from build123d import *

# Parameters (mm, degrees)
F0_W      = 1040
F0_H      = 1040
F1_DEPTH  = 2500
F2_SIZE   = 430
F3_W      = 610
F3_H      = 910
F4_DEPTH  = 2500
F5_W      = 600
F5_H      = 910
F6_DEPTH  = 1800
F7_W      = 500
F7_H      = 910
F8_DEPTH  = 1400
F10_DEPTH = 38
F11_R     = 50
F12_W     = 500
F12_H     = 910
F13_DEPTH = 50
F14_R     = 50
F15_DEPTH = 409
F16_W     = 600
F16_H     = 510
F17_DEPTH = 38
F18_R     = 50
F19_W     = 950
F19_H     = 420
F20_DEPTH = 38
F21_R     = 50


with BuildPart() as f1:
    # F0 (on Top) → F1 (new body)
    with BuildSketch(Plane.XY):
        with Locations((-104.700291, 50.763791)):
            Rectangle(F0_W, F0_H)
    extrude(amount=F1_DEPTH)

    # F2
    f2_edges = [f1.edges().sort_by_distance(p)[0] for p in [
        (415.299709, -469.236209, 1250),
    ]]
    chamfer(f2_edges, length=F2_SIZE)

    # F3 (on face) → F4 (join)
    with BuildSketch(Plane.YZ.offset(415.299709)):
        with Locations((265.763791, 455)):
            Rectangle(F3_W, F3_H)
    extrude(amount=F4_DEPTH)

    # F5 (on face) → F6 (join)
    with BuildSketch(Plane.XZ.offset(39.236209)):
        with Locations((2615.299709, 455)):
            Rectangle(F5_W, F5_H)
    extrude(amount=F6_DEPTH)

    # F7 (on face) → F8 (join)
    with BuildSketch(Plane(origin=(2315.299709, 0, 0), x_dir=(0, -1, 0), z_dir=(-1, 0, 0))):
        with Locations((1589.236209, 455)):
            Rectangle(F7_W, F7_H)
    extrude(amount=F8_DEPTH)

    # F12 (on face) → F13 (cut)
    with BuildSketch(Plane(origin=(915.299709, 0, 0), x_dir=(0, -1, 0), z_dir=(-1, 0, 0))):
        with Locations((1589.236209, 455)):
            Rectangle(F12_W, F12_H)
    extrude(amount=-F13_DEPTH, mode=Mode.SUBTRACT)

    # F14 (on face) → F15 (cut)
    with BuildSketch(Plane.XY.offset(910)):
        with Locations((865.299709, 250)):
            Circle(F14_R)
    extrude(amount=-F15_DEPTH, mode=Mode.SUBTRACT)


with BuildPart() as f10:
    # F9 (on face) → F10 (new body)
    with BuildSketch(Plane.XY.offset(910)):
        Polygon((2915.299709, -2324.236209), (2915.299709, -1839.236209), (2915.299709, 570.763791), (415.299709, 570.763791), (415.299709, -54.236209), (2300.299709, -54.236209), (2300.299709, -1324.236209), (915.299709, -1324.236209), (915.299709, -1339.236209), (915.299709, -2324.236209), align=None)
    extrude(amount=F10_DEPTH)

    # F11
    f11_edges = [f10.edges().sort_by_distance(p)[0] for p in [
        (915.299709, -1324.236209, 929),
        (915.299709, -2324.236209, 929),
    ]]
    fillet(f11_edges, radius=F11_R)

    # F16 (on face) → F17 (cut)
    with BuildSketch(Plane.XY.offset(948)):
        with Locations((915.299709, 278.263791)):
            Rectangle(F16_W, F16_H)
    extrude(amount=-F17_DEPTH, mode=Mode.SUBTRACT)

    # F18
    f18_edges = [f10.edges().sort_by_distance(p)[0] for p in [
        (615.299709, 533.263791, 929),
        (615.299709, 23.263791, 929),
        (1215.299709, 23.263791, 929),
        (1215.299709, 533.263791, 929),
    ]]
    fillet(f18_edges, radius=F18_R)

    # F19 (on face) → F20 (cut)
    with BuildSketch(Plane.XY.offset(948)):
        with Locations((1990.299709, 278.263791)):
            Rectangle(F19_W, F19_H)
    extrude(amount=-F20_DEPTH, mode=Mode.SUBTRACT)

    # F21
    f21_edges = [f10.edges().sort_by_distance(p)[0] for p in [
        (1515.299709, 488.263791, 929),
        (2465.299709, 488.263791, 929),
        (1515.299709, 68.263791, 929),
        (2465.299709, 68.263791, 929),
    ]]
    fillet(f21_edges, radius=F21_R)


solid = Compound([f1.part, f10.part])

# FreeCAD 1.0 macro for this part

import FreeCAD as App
import Part
import Sketcher


def edges_at(feature, points):
    """Names of the edges that pass closest to the given points."""
    edges = feature.Shape.Edges
    near = lambda p: min(range(len(edges)), key=lambda i: edges[i].distToShape(Part.Vertex(*p))[0])
    return sorted({f"Edge{near(p) + 1}" for p in points})

doc = App.newDocument("Part")
body = doc.addObject("PartDesign::Body", "Body")

sketch1 = body.newObject("Sketcher::SketchObject", "Sketch")
sketch1.AttachmentSupport = (doc.getObject("XY_Plane"), [""])
sketch1.MapMode = "FlatFace"
sketch1.addGeometry(Part.LineSegment(App.Vector(-624.700291, 570.763791, 0), App.Vector(-624.700291, -469.236209, 0)), False)
sketch1.addGeometry(Part.LineSegment(App.Vector(-624.700291, -469.236209, 0), App.Vector(415.299709, -469.236209, 0)), False)
sketch1.addGeometry(Part.LineSegment(App.Vector(415.299709, -469.236209, 0), App.Vector(415.299709, 570.763791, 0)), False)
sketch1.addGeometry(Part.LineSegment(App.Vector(415.299709, 570.763791, 0), App.Vector(-624.700291, 570.763791, 0)), False)
sketch1.addConstraint(Sketcher.Constraint("Coincident", 0, 2, 1, 1))
sketch1.addConstraint(Sketcher.Constraint("Coincident", 1, 2, 2, 1))
sketch1.addConstraint(Sketcher.Constraint("Coincident", 2, 2, 3, 1))
sketch1.addConstraint(Sketcher.Constraint("Coincident", 3, 2, 0, 1))
sketch1.addConstraint(Sketcher.Constraint("Vertical", 0))
sketch1.addConstraint(Sketcher.Constraint("Horizontal", 1))
sketch1.addConstraint(Sketcher.Constraint("Vertical", 2))
sketch1.addConstraint(Sketcher.Constraint("Horizontal", 3))
sketch1.addConstraint(Sketcher.Constraint("Equal", 3, 0))
sketch1.addConstraint(Sketcher.Constraint("DistanceX", 1, 1, 1, 2, 1040.0))
sketch1.addConstraint(Sketcher.Constraint("DistanceX", 0, 2, -1, 1, 624.700291))
sketch1.addConstraint(Sketcher.Constraint("DistanceY", 0, 2, -1, 1, 469.236209))
pad1 = body.newObject("PartDesign::Pad", "Pad")
pad1.Profile = sketch1
pad1.Length = 2500
doc.recompute()

chamfer = body.newObject("PartDesign::Chamfer", "Chamfer")
chamfer.Base = (pad1, edges_at(pad1, [(415.3, -469.236, 1250)]))
chamfer.Size = 430

sketch2 = body.newObject("Sketcher::SketchObject", "Sketch001")
sketch2.AttachmentSupport = (doc.getObject("YZ_Plane"), [""])
sketch2.MapMode = "FlatFace"
sketch2.AttachmentOffset = App.Placement(App.Vector(0, 0, 415.299709), App.Rotation())
sketch2.addGeometry(Part.LineSegment(App.Vector(-39.236209, 910, 0), App.Vector(-39.236209, 0, 0)), False)
sketch2.addGeometry(Part.LineSegment(App.Vector(-39.236209, 0, 0), App.Vector(570.763791, 0, 0)), False)
sketch2.addGeometry(Part.LineSegment(App.Vector(570.763791, 0, 0), App.Vector(570.763791, 910, 0)), False)
sketch2.addGeometry(Part.LineSegment(App.Vector(570.763791, 910, 0), App.Vector(-39.236209, 910, 0)), False)
sketch2.addConstraint(Sketcher.Constraint("Coincident", 0, 2, 1, 1))
sketch2.addConstraint(Sketcher.Constraint("Coincident", 1, 2, 2, 1))
sketch2.addConstraint(Sketcher.Constraint("Coincident", 2, 2, 3, 1))
sketch2.addConstraint(Sketcher.Constraint("Coincident", 3, 2, 0, 1))
sketch2.addConstraint(Sketcher.Constraint("Vertical", 0))
sketch2.addConstraint(Sketcher.Constraint("Horizontal", 1))
sketch2.addConstraint(Sketcher.Constraint("Vertical", 2))
sketch2.addConstraint(Sketcher.Constraint("Horizontal", 3))
sketch2.addConstraint(Sketcher.Constraint("PointOnObject", 0, 2, -1))
sketch2.addConstraint(Sketcher.Constraint("DistanceX", 1, 1, 1, 2, 610.0))
sketch2.addConstraint(Sketcher.Constraint("DistanceY", 0, 2, 0, 1, 910.0))
sketch2.addConstraint(Sketcher.Constraint("DistanceX", 0, 2, -1, 1, 39.236209))
pad2 = body.newObject("PartDesign::Pad", "Pad001")
pad2.Profile = sketch2
pad2.Length = 2500

sketch3 = body.newObject("Sketcher::SketchObject", "Sketch002")
sketch3.AttachmentSupport = (doc.getObject("XZ_Plane"), [""])
sketch3.MapMode = "FlatFace"
sketch3.AttachmentOffset = App.Placement(App.Vector(0, 0, 39.236209), App.Rotation())
sketch3.addGeometry(Part.LineSegment(App.Vector(2315.299709, 910, 0), App.Vector(2315.299709, 0, 0)), False)
sketch3.addGeometry(Part.LineSegment(App.Vector(2315.299709, 0, 0), App.Vector(2915.299709, 0, 0)), False)
sketch3.addGeometry(Part.LineSegment(App.Vector(2915.299709, 0, 0), App.Vector(2915.299709, 910, 0)), False)
sketch3.addGeometry(Part.LineSegment(App.Vector(2915.299709, 910, 0), App.Vector(2315.299709, 910, 0)), False)
sketch3.addConstraint(Sketcher.Constraint("Coincident", 0, 2, 1, 1))
sketch3.addConstraint(Sketcher.Constraint("Coincident", 1, 2, 2, 1))
sketch3.addConstraint(Sketcher.Constraint("Coincident", 2, 2, 3, 1))
sketch3.addConstraint(Sketcher.Constraint("Coincident", 3, 2, 0, 1))
sketch3.addConstraint(Sketcher.Constraint("Vertical", 0))
sketch3.addConstraint(Sketcher.Constraint("Horizontal", 1))
sketch3.addConstraint(Sketcher.Constraint("Vertical", 2))
sketch3.addConstraint(Sketcher.Constraint("Horizontal", 3))
sketch3.addConstraint(Sketcher.Constraint("PointOnObject", 0, 2, -1))
sketch3.addConstraint(Sketcher.Constraint("DistanceX", 1, 1, 1, 2, 600.0))
sketch3.addConstraint(Sketcher.Constraint("DistanceY", 0, 2, 0, 1, 910.0))
sketch3.addConstraint(Sketcher.Constraint("DistanceX", -1, 1, 0, 2, 2315.299709))
pad3 = body.newObject("PartDesign::Pad", "Pad002")
pad3.Profile = sketch3
pad3.Length = 1800

sketch4 = body.newObject("Sketcher::SketchObject", "Sketch003")
sketch4.AttachmentSupport = (doc.getObject("YZ_Plane"), [""])
sketch4.MapMode = "FlatFace"
sketch4.AttachmentOffset = App.Placement(App.Vector(0, 0, 2315.299709), App.Rotation())
sketch4.addGeometry(Part.LineSegment(App.Vector(-1339.236209, 910, 0), App.Vector(-1339.236209, 0, 0)), False)
sketch4.addGeometry(Part.LineSegment(App.Vector(-1339.236209, 0, 0), App.Vector(-1839.236209, 0, 0)), False)
sketch4.addGeometry(Part.LineSegment(App.Vector(-1839.236209, 0, 0), App.Vector(-1839.236209, 910, 0)), False)
sketch4.addGeometry(Part.LineSegment(App.Vector(-1839.236209, 910, 0), App.Vector(-1339.236209, 910, 0)), False)
sketch4.addConstraint(Sketcher.Constraint("Coincident", 0, 2, 1, 1))
sketch4.addConstraint(Sketcher.Constraint("Coincident", 1, 2, 2, 1))
sketch4.addConstraint(Sketcher.Constraint("Coincident", 2, 2, 3, 1))
sketch4.addConstraint(Sketcher.Constraint("Coincident", 3, 2, 0, 1))
sketch4.addConstraint(Sketcher.Constraint("Vertical", 0))
sketch4.addConstraint(Sketcher.Constraint("Horizontal", 1))
sketch4.addConstraint(Sketcher.Constraint("Vertical", 2))
sketch4.addConstraint(Sketcher.Constraint("Horizontal", 3))
sketch4.addConstraint(Sketcher.Constraint("PointOnObject", 0, 2, -1))
sketch4.addConstraint(Sketcher.Constraint("DistanceX", 1, 2, 1, 1, 500.0))
sketch4.addConstraint(Sketcher.Constraint("DistanceY", 0, 2, 0, 1, 910.0))
sketch4.addConstraint(Sketcher.Constraint("DistanceX", 0, 2, -1, 1, 1339.236209))
pad4 = body.newObject("PartDesign::Pad", "Pad003")
pad4.Profile = sketch4
pad4.Length = 1400
pad4.Reversed = True

sketch5 = body.newObject("Sketcher::SketchObject", "Sketch004")
sketch5.AttachmentSupport = (doc.getObject("YZ_Plane"), [""])
sketch5.MapMode = "FlatFace"
sketch5.AttachmentOffset = App.Placement(App.Vector(0, 0, 915.299709), App.Rotation())
sketch5.addGeometry(Part.LineSegment(App.Vector(-1339.236209, 910, 0), App.Vector(-1339.236209, 0, 0)), False)
sketch5.addGeometry(Part.LineSegment(App.Vector(-1339.236209, 0, 0), App.Vector(-1839.236209, 0, 0)), False)
sketch5.addGeometry(Part.LineSegment(App.Vector(-1839.236209, 0, 0), App.Vector(-1839.236209, 910, 0)), False)
sketch5.addGeometry(Part.LineSegment(App.Vector(-1839.236209, 910, 0), App.Vector(-1339.236209, 910, 0)), False)
sketch5.addConstraint(Sketcher.Constraint("Coincident", 0, 2, 1, 1))
sketch5.addConstraint(Sketcher.Constraint("Coincident", 1, 2, 2, 1))
sketch5.addConstraint(Sketcher.Constraint("Coincident", 2, 2, 3, 1))
sketch5.addConstraint(Sketcher.Constraint("Coincident", 3, 2, 0, 1))
sketch5.addConstraint(Sketcher.Constraint("Vertical", 0))
sketch5.addConstraint(Sketcher.Constraint("Horizontal", 1))
sketch5.addConstraint(Sketcher.Constraint("Vertical", 2))
sketch5.addConstraint(Sketcher.Constraint("Horizontal", 3))
sketch5.addConstraint(Sketcher.Constraint("PointOnObject", 0, 2, -1))
sketch5.addConstraint(Sketcher.Constraint("DistanceX", 1, 2, 1, 1, 500.0))
sketch5.addConstraint(Sketcher.Constraint("DistanceY", 0, 2, 0, 1, 910.0))
sketch5.addConstraint(Sketcher.Constraint("DistanceX", 0, 2, -1, 1, 1339.236209))
pocket1 = body.newObject("PartDesign::Pocket", "Pocket")
pocket1.Profile = sketch5
pocket1.Length = 50
pocket1.Reversed = True

sketch6 = body.newObject("Sketcher::SketchObject", "Sketch005")
sketch6.AttachmentSupport = (doc.getObject("XY_Plane"), [""])
sketch6.MapMode = "FlatFace"
sketch6.AttachmentOffset = App.Placement(App.Vector(0, 0, 910), App.Rotation())
sketch6.addGeometry(Part.Circle(App.Vector(865.299709, 250, 0), App.Vector(0, 0, 1), 50), False)
sketch6.addConstraint(Sketcher.Constraint("Diameter", 0, 100.0))
sketch6.addConstraint(Sketcher.Constraint("DistanceY", -1, 1, 0, 3, 250.0))
sketch6.addConstraint(Sketcher.Constraint("DistanceX", -1, 1, 0, 3, 865.299709))
pocket2 = body.newObject("PartDesign::Pocket", "Pocket001")
pocket2.Profile = sketch6
pocket2.Length = 409
body2 = doc.addObject("PartDesign::Body", "Body001")

sketch7 = body2.newObject("Sketcher::SketchObject", "Sketch006")
sketch7.AttachmentSupport = (doc.getObject("XY_Plane001"), [""])
sketch7.MapMode = "FlatFace"
sketch7.AttachmentOffset = App.Placement(App.Vector(0, 0, 910), App.Rotation())
sketch7.addGeometry(Part.LineSegment(App.Vector(2915.299709, -2324.236209, 0), App.Vector(2915.299709, 570.763791, 0)), False)
sketch7.addGeometry(Part.LineSegment(App.Vector(2915.299709, 570.763791, 0), App.Vector(415.299709, 570.763791, 0)), False)
sketch7.addGeometry(Part.LineSegment(App.Vector(415.299709, 570.763791, 0), App.Vector(415.299709, -54.236209, 0)), False)
sketch7.addGeometry(Part.LineSegment(App.Vector(415.299709, -54.236209, 0), App.Vector(2300.299709, -54.236209, 0)), False)
sketch7.addGeometry(Part.LineSegment(App.Vector(2300.299709, -54.236209, 0), App.Vector(2300.299709, -1324.236209, 0)), False)
sketch7.addGeometry(Part.LineSegment(App.Vector(2300.299709, -1324.236209, 0), App.Vector(915.299709, -1324.236209, 0)), False)
sketch7.addGeometry(Part.LineSegment(App.Vector(915.299709, -1324.236209, 0), App.Vector(915.299709, -2324.236209, 0)), False)
sketch7.addGeometry(Part.LineSegment(App.Vector(915.299709, -2324.236209, 0), App.Vector(2915.299709, -2324.236209, 0)), False)
sketch7.addConstraint(Sketcher.Constraint("Coincident", 0, 2, 1, 1))
sketch7.addConstraint(Sketcher.Constraint("Coincident", 1, 2, 2, 1))
sketch7.addConstraint(Sketcher.Constraint("Coincident", 2, 2, 3, 1))
sketch7.addConstraint(Sketcher.Constraint("Coincident", 3, 2, 4, 1))
sketch7.addConstraint(Sketcher.Constraint("Coincident", 4, 2, 5, 1))
sketch7.addConstraint(Sketcher.Constraint("Coincident", 5, 2, 6, 1))
sketch7.addConstraint(Sketcher.Constraint("Coincident", 6, 2, 7, 1))
sketch7.addConstraint(Sketcher.Constraint("Coincident", 7, 2, 0, 1))
sketch7.addConstraint(Sketcher.Constraint("Vertical", 0))
sketch7.addConstraint(Sketcher.Constraint("Horizontal", 1))
sketch7.addConstraint(Sketcher.Constraint("Vertical", 2))
sketch7.addConstraint(Sketcher.Constraint("Horizontal", 3))
sketch7.addConstraint(Sketcher.Constraint("Vertical", 4))
sketch7.addConstraint(Sketcher.Constraint("Horizontal", 5))
sketch7.addConstraint(Sketcher.Constraint("Vertical", 6))
sketch7.addConstraint(Sketcher.Constraint("Horizontal", 7))
sketch7.addConstraint(Sketcher.Constraint("DistanceX", 1, 2, 1, 1, 2500.0))
sketch7.addConstraint(Sketcher.Constraint("DistanceX", 3, 1, 3, 2, 1885.0))
sketch7.addConstraint(Sketcher.Constraint("DistanceX", 5, 2, 5, 1, 1385.0))
sketch7.addConstraint(Sketcher.Constraint("DistanceY", 0, 1, 0, 2, 2895.0))
sketch7.addConstraint(Sketcher.Constraint("DistanceY", 2, 2, 2, 1, 625.0))
sketch7.addConstraint(Sketcher.Constraint("DistanceY", 4, 2, 4, 1, 1270.0))
sketch7.addConstraint(Sketcher.Constraint("DistanceX", -1, 1, 0, 2, 2915.299709))
sketch7.addConstraint(Sketcher.Constraint("DistanceY", -1, 1, 0, 2, 570.763791))
pad5 = body2.newObject("PartDesign::Pad", "Pad004")
pad5.Profile = sketch7
pad5.Length = 38
doc.recompute()

fillet = body2.newObject("PartDesign::Fillet", "Fillet")
fillet.Base = (pad5, edges_at(pad5, [(915.3, -1324.236, 929), (915.3, -2324.236, 929)]))
fillet.Radius = 50

sketch8 = body2.newObject("Sketcher::SketchObject", "Sketch007")
sketch8.AttachmentSupport = (doc.getObject("XY_Plane001"), [""])
sketch8.MapMode = "FlatFace"
sketch8.AttachmentOffset = App.Placement(App.Vector(0, 0, 948), App.Rotation())
sketch8.addGeometry(Part.LineSegment(App.Vector(615.299709, 533.263791, 0), App.Vector(615.299709, 23.263791, 0)), False)
sketch8.addGeometry(Part.LineSegment(App.Vector(615.299709, 23.263791, 0), App.Vector(1215.299709, 23.263791, 0)), False)
sketch8.addGeometry(Part.LineSegment(App.Vector(1215.299709, 23.263791, 0), App.Vector(1215.299709, 533.263791, 0)), False)
sketch8.addGeometry(Part.LineSegment(App.Vector(1215.299709, 533.263791, 0), App.Vector(615.299709, 533.263791, 0)), False)
sketch8.addConstraint(Sketcher.Constraint("Coincident", 0, 2, 1, 1))
sketch8.addConstraint(Sketcher.Constraint("Coincident", 1, 2, 2, 1))
sketch8.addConstraint(Sketcher.Constraint("Coincident", 2, 2, 3, 1))
sketch8.addConstraint(Sketcher.Constraint("Coincident", 3, 2, 0, 1))
sketch8.addConstraint(Sketcher.Constraint("Vertical", 0))
sketch8.addConstraint(Sketcher.Constraint("Horizontal", 1))
sketch8.addConstraint(Sketcher.Constraint("Vertical", 2))
sketch8.addConstraint(Sketcher.Constraint("Horizontal", 3))
sketch8.addConstraint(Sketcher.Constraint("DistanceX", 1, 1, 1, 2, 600.0))
sketch8.addConstraint(Sketcher.Constraint("DistanceY", 0, 2, 0, 1, 510.0))
sketch8.addConstraint(Sketcher.Constraint("DistanceX", -1, 1, 0, 2, 615.299709))
sketch8.addConstraint(Sketcher.Constraint("DistanceY", -1, 1, 0, 2, 23.263791))
pocket3 = body2.newObject("PartDesign::Pocket", "Pocket002")
pocket3.Profile = sketch8
pocket3.Length = 38
doc.recompute()

fillet2 = body2.newObject("PartDesign::Fillet", "Fillet001")
fillet2.Base = (pocket3, edges_at(pocket3, [
    (615.3, 533.264, 929),
    (615.3, 23.264, 929),
    (1215.3, 23.264, 929),
    (1215.3, 533.264, 929),
]))
fillet2.Radius = 50

sketch9 = body2.newObject("Sketcher::SketchObject", "Sketch008")
sketch9.AttachmentSupport = (doc.getObject("XY_Plane001"), [""])
sketch9.MapMode = "FlatFace"
sketch9.AttachmentOffset = App.Placement(App.Vector(0, 0, 948), App.Rotation())
sketch9.addGeometry(Part.LineSegment(App.Vector(1515.299709, 488.263791, 0), App.Vector(1515.299709, 68.263791, 0)), False)
sketch9.addGeometry(Part.LineSegment(App.Vector(1515.299709, 68.263791, 0), App.Vector(2465.299709, 68.263791, 0)), False)
sketch9.addGeometry(Part.LineSegment(App.Vector(2465.299709, 68.263791, 0), App.Vector(2465.299709, 488.263791, 0)), False)
sketch9.addGeometry(Part.LineSegment(App.Vector(2465.299709, 488.263791, 0), App.Vector(1515.299709, 488.263791, 0)), False)
sketch9.addConstraint(Sketcher.Constraint("Coincident", 0, 2, 1, 1))
sketch9.addConstraint(Sketcher.Constraint("Coincident", 1, 2, 2, 1))
sketch9.addConstraint(Sketcher.Constraint("Coincident", 2, 2, 3, 1))
sketch9.addConstraint(Sketcher.Constraint("Coincident", 3, 2, 0, 1))
sketch9.addConstraint(Sketcher.Constraint("Vertical", 0))
sketch9.addConstraint(Sketcher.Constraint("Horizontal", 1))
sketch9.addConstraint(Sketcher.Constraint("Vertical", 2))
sketch9.addConstraint(Sketcher.Constraint("Horizontal", 3))
sketch9.addConstraint(Sketcher.Constraint("DistanceX", 1, 1, 1, 2, 950.0))
sketch9.addConstraint(Sketcher.Constraint("DistanceY", 0, 2, 0, 1, 420.0))
sketch9.addConstraint(Sketcher.Constraint("DistanceX", -1, 1, 0, 2, 1515.299709))
sketch9.addConstraint(Sketcher.Constraint("DistanceY", -1, 1, 0, 2, 68.263791))
pocket4 = body2.newObject("PartDesign::Pocket", "Pocket003")
pocket4.Profile = sketch9
pocket4.Length = 38
doc.recompute()

fillet3 = body2.newObject("PartDesign::Fillet", "Fillet002")
fillet3.Base = (pocket4, edges_at(pocket4, [
    (1515.3, 488.264, 929),
    (2465.3, 488.264, 929),
    (1515.3, 68.264, 929),
    (2465.3, 68.264, 929),
]))
fillet3.Radius = 50

doc.recompute()
